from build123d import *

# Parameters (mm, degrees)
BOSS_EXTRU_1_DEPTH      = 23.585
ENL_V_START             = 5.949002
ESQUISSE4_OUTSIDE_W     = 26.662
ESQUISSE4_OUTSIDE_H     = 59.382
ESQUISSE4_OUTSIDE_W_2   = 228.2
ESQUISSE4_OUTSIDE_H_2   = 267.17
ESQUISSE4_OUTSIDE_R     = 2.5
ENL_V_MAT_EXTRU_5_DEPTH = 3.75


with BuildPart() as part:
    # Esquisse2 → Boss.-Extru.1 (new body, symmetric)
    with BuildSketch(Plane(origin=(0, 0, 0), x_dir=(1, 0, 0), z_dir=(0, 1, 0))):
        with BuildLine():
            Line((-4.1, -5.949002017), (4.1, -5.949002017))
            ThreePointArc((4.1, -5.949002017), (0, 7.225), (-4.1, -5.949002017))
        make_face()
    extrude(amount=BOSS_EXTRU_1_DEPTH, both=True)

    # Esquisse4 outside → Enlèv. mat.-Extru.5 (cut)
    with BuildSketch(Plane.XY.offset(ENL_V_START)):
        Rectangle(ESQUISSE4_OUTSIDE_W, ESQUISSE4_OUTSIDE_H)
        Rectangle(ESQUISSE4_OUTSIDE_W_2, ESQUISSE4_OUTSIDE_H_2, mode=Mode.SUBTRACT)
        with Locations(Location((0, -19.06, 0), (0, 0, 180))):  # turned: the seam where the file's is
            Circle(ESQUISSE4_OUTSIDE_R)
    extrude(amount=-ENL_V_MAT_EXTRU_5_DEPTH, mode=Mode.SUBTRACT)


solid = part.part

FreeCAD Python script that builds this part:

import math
import FreeCAD as App
import Part
import Sketcher

doc = App.newDocument("Part")
body = doc.addObject("PartDesign::Body", "Body")

# Sketch on XZ plane
sketch1 = body.newObject("Sketcher::SketchObject", "Sketch")
sketch1.AttachmentSupport = (doc.getObject("XZ_Plane"), [""])
sketch1.MapMode = "FlatFace"
sketch1.addGeometry([
    Part.LineSegment(App.Vector(-4, 6, 0), App.Vector(4, 6, 0)),
    Part.ArcOfCircle(Part.Circle(App.Vector(0, 0, 0), App.Vector(0, 0, 1), 7), math.radians(125), math.radians(415)),
], False)
sketch1.addConstraint([
    Sketcher.Constraint("Coincident", 0, 1, 1, 1),
    Sketcher.Constraint("Coincident", 1, 2, 0, 2),
    Sketcher.Constraint("Horizontal", 0),
    Sketcher.Constraint("Coincident", 1, 3, -1, 1),
    Sketcher.Constraint("DistanceX", 0, 1, 0, 2, 8.2),
    Sketcher.Constraint("Radius", 1, 7.225),
])
pad1 = body.newObject("PartDesign::Pad", "Pad")
pad1.Profile = sketch1
pad1.Length = 47.17
pad1.Midplane = True

# Sketch on XY plane
sketch2 = body.newObject("Sketcher::SketchObject", "Sketch001")
sketch2.AttachmentSupport = (doc.getObject("XY_Plane"), [""])
sketch2.MapMode = "FlatFace"
sketch2.AttachmentOffset = App.Placement(App.Vector(0, 0, 5.949002), App.Rotation())
sketch2.addGeometry(Part.Circle(App.Vector(0, -19.1, 0), App.Vector(0, 0, 1), 2.5), False)
sketch2.addConstraint([
    Sketcher.Constraint("PointOnObject", 0, 3, -2),
    Sketcher.Constraint("Diameter", 0, 5.0),
    Sketcher.Constraint("DistanceY", 0, 3, -1, 1, 19.06),
])
pocket1 = body.newObject("PartDesign::Pocket", "Pocket")
pocket1.Profile = sketch2
pocket1.Length = 3.75

doc.recompute()
